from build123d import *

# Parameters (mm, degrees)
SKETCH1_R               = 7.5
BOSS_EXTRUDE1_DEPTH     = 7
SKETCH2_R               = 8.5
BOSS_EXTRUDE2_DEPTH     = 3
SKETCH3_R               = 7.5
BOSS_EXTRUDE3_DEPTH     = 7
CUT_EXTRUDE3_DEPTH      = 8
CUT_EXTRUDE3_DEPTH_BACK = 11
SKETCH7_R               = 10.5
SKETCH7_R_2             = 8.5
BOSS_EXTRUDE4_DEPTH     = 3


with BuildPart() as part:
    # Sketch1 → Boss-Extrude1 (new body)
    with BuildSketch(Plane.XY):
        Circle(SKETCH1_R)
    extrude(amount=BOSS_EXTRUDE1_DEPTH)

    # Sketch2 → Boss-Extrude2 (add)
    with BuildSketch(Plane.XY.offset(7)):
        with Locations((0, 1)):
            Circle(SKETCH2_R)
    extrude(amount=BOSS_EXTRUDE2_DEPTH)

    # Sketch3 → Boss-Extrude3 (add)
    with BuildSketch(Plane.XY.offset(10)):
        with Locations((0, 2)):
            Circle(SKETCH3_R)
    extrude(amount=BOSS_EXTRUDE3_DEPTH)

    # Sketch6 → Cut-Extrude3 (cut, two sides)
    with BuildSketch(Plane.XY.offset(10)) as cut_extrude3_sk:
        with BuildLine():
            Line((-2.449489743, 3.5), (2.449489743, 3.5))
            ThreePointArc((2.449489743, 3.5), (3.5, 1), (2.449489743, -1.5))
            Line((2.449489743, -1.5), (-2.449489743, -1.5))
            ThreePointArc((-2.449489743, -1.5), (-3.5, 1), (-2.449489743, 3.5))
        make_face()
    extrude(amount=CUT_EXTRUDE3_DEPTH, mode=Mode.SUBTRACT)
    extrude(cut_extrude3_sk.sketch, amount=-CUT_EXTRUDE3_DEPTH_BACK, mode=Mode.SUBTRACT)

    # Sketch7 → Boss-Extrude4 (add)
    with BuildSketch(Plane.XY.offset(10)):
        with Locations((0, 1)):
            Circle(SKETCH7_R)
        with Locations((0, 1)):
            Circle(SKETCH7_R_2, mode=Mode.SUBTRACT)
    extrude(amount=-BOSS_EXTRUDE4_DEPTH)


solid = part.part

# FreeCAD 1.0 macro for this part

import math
import FreeCAD as App
import Part
import Sketcher

doc = App.newDocument("Part")
body = doc.addObject("PartDesign::Body", "Body")

# Sketch on XY plane
sketch1 = body.newObject("Sketcher::SketchObject", "Sketch")
sketch1.AttachmentSupport = (doc.getObject("XY_Plane"), [""])
sketch1.MapMode = "FlatFace"
sketch1.addGeometry(Part.Circle(App.Vector(0, 0, 0), App.Vector(0, 0, 1), 7.5), False)
sketch1.addConstraint(Sketcher.Constraint("Coincident", 0, 3, -1, 1))
sketch1.addConstraint(Sketcher.Constraint("Diameter", 0, 15.0))
pad1 = body.newObject("PartDesign::Pad", "Pad")
pad1.Profile = sketch1
pad1.Length = 7

# Sketch on XY plane
sketch2 = body.newObject("Sketcher::SketchObject", "Sketch001")
sketch2.AttachmentSupport = (doc.getObject("XY_Plane"), [""])
sketch2.MapMode = "FlatFace"
sketch2.AttachmentOffset = App.Placement(App.Vector(0, 0, 7), App.Rotation())
sketch2.addGeometry(Part.Circle(App.Vector(0, 1, 0), App.Vector(0, 0, 1), 8.5), False)
sketch2.addConstraint(Sketcher.Constraint("PointOnObject", 0, 3, -2))
sketch2.addConstraint(Sketcher.Constraint("Diameter", 0, 17.0))
sketch2.addConstraint(Sketcher.Constraint("DistanceY", -1, 1, 0, 3, 1.0))
pad2 = body.newObject("PartDesign::Pad", "Pad001")
pad2.Profile = sketch2
pad2.Length = 3

# Sketch on XY plane
sketch3 = body.newObject("Sketcher::SketchObject", "Sketch002")
sketch3.AttachmentSupport = (doc.getObject("XY_Plane"), [""])
sketch3.MapMode = "FlatFace"
sketch3.AttachmentOffset = App.Placement(App.Vector(0, 0, 10), App.Rotation())
sketch3.addGeometry(Part.Circle(App.Vector(0, 2, 0), App.Vector(0, 0, 1), 7.5), False)
sketch3.addConstraint(Sketcher.Constraint("PointOnObject", 0, 3, -2))
sketch3.addConstraint(Sketcher.Constraint("Diameter", 0, 15.0))
sketch3.addConstraint(Sketcher.Constraint("DistanceY", -1, 1, 0, 3, 2.0))
pad3 = body.newObject("PartDesign::Pad", "Pad002")
pad3.Profile = sketch3
pad3.Length = 7

# Sketch on XY plane
sketch4 = body.newObject("Sketcher::SketchObject", "Sketch003")
sketch4.AttachmentSupport = (doc.getObject("XY_Plane"), [""])
sketch4.MapMode = "FlatFace"
sketch4.AttachmentOffset = App.Placement(App.Vector(0, 0, 10), App.Rotation())
sketch4.addGeometry(Part.LineSegment(App.Vector(2.44949, 3.5, 0), App.Vector(-2.44949, 3.5, 0)), False)
sketch4.addGeometry(Part.ArcOfCircle(Part.Circle(App.Vector(0, 1, 0), App.Vector(0, 0, 1), 3.5), math.radians(134.415309), math.radians(225.584691)), False)
sketch4.addGeometry(Part.LineSegment(App.Vector(-2.44949, -1.5, 0), App.Vector(2.44949, -1.5, 0)), False)
sketch4.addGeometry(Part.ArcOfCircle(Part.Circle(App.Vector(0, 1, 0), App.Vector(0, 0, 1), 3.5), math.radians(-45.584691), math.radians(45.584691)), False)
sketch4.addConstraint(Sketcher.Constraint("Coincident", 0, 2, 1, 1))
sketch4.addConstraint(Sketcher.Constraint("Coincident", 1, 2, 2, 1))
sketch4.addConstraint(Sketcher.Constraint("Coincident", 2, 2, 3, 1))
sketch4.addConstraint(Sketcher.Constraint("Coincident", 3, 2, 0, 1))
sketch4.addConstraint(Sketcher.Constraint("Horizontal", 0))
sketch4.addConstraint(Sketcher.Constraint("Horizontal", 2))
sketch4.addConstraint(Sketcher.Constraint("Coincident", 3, 3, 1, 3))
sketch4.addConstraint(Sketcher.Constraint("Equal", 1, 3))
sketch4.addConstraint(Sketcher.Constraint("PointOnObject", 1, 3, -2))
sketch4.addConstraint(Sketcher.Constraint("Vertical", 0, 2, 1, 2))
sketch4.addConstraint(Sketcher.Constraint("Radius", 1, 3.5))
sketch4.addConstraint(Sketcher.Constraint("DistanceY", -1, 1, 1, 3, 1.0))
sketch4.addConstraint(Sketcher.Constraint("DistanceY", 1, 2, 0, 2, 5.0))
pocket1 = body.newObject("PartDesign::Pocket", "Pocket")
pocket1.Profile = sketch4
pocket1.Type = "ThroughAll"
pocket1.Midplane = True

# Sketch on XY plane
sketch5 = body.newObject("Sketcher::SketchObject", "Sketch004")
sketch5.AttachmentSupport = (doc.getObject("XY_Plane"), [""])
sketch5.MapMode = "FlatFace"
sketch5.AttachmentOffset = App.Placement(App.Vector(0, 0, 10), App.Rotation())
sketch5.addGeometry(Part.Circle(App.Vector(0, 1, 0), App.Vector(0, 0, 1), 10.5), False)
sketch5.addGeometry(Part.Circle(App.Vector(0, 1, 0), App.Vector(0, 0, 1), 8.5), False)
sketch5.addConstraint(Sketcher.Constraint("Coincident", 1, 3, 0, 3))
sketch5.addConstraint(Sketcher.Constraint("PointOnObject", 0, 3, -2))
sketch5.addConstraint(Sketcher.Constraint("Diameter", 0, 21.0))
sketch5.addConstraint(Sketcher.Constraint("Diameter", 1, 17.0))
sketch5.addConstraint(Sketcher.Constraint("DistanceY", -1, 1, 0, 3, 1.0))
pad4 = body.newObject("PartDesign::Pad", "Pad003")
pad4.Profile = sketch5
pad4.Length = 3
pad4.Reversed = True

doc.recompute()
